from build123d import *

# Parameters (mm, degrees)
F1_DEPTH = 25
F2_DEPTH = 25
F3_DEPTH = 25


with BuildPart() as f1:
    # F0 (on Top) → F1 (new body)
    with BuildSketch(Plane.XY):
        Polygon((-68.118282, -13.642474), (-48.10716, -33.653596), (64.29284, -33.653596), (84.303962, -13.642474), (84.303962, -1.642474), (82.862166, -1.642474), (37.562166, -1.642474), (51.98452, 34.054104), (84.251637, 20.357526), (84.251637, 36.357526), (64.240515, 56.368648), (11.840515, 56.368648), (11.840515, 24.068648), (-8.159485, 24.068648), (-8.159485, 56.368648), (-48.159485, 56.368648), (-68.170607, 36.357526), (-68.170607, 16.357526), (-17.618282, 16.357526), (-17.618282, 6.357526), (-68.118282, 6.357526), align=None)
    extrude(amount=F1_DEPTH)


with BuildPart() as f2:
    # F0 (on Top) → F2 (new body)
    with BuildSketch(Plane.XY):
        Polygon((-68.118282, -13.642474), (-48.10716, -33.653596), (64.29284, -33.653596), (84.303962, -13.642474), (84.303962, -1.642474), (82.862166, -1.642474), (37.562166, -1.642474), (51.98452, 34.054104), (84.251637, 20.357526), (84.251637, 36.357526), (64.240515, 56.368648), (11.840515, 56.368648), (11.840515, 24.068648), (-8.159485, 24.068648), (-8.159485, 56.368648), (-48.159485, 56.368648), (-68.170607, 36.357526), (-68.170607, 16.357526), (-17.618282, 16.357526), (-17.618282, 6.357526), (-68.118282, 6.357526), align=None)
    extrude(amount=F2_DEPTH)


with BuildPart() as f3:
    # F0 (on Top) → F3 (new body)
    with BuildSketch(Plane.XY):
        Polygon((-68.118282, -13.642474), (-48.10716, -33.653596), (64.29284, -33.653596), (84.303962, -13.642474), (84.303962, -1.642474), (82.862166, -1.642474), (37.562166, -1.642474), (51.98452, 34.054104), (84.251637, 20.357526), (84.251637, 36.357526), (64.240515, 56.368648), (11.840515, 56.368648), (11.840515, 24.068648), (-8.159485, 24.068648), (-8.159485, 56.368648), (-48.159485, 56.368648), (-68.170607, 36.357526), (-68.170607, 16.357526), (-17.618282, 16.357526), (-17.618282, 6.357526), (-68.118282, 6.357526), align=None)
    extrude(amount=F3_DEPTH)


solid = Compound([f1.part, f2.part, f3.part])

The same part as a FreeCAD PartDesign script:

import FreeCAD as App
import Part
import Sketcher

V = App.Vector
Q = App.Units.Quantity

doc = App.newDocument("Part")
body = doc.addObject("PartDesign::Body", "Body")

# Sketch on XY plane
sketch1 = doc.addObject("Sketcher::SketchObject", "Sketch")
body.addObject(sketch1)
sketch1.AttachmentSupport = (doc.XY_Plane, [""])
sketch1.MapMode = "FlatFace"
sketch1.addGeometry(Part.LineSegment(V(-68, -14, 0), V(-48, -34, 0)), False)
sketch1.addGeometry(Part.LineSegment(V(-48, -34, 0), V(64, -34, 0)), False)
sketch1.addGeometry(Part.LineSegment(V(64, -34, 0), V(84, -14, 0)), False)
sketch1.addGeometry(Part.LineSegment(V(84, -14, 0), V(84, -2, 0)), False)
sketch1.addGeometry(Part.LineSegment(V(84, -2, 0), V(38, -2, 0)), False)
sketch1.addGeometry(Part.LineSegment(V(38, -2, 0), V(52, 34, 0)), False)
sketch1.addGeometry(Part.LineSegment(V(52, 34, 0), V(84, 20, 0)), False)
sketch1.addGeometry(Part.LineSegment(V(84, 20, 0), V(84, 36, 0)), False)
sketch1.addGeometry(Part.LineSegment(V(84, 36, 0), V(64, 56, 0)), False)
sketch1.addGeometry(Part.LineSegment(V(64, 56, 0), V(12, 56, 0)), False)
sketch1.addGeometry(Part.LineSegment(V(12, 56, 0), V(12, 24, 0)), False)
sketch1.addGeometry(Part.LineSegment(V(12, 24, 0), V(-8, 24, 0)), False)
sketch1.addGeometry(Part.LineSegment(V(-8, 24, 0), V(-8, 56, 0)), False)
sketch1.addGeometry(Part.LineSegment(V(-8, 56, 0), V(-48, 56, 0)), False)
sketch1.addGeometry(Part.LineSegment(V(-48, 56, 0), V(-68, 36, 0)), False)
sketch1.addGeometry(Part.LineSegment(V(-68, 36, 0), V(-68, 16, 0)), False)
sketch1.addGeometry(Part.LineSegment(V(-68, 16, 0), V(-18, 16, 0)), False)
sketch1.addGeometry(Part.LineSegment(V(-18, 16, 0), V(-18, 6, 0)), False)
sketch1.addGeometry(Part.LineSegment(V(-18, 6, 0), V(-68, 6, 0)), False)
sketch1.addGeometry(Part.LineSegment(V(-68, 6, 0), V(-68, -14, 0)), False)
sketch1.addConstraint(Sketcher.Constraint("Coincident", 0, 2, 1, 1))
sketch1.addConstraint(Sketcher.Constraint("Coincident", 1, 2, 2, 1))
sketch1.addConstraint(Sketcher.Constraint("Coincident", 2, 2, 3, 1))
sketch1.addConstraint(Sketcher.Constraint("Coincident", 3, 2, 4, 1))
sketch1.addConstraint(Sketcher.Constraint("Coincident", 4, 2, 5, 1))
sketch1.addConstraint(Sketcher.Constraint("Coincident", 5, 2, 6, 1))
sketch1.addConstraint(Sketcher.Constraint("Coincident", 6, 2, 7, 1))
sketch1.addConstraint(Sketcher.Constraint("Coincident", 7, 2, 8, 1))
sketch1.addConstraint(Sketcher.Constraint("Coincident", 8, 2, 9, 1))
sketch1.addConstraint(Sketcher.Constraint("Coincident", 9, 2, 10, 1))
sketch1.addConstraint(Sketcher.Constraint("Coincident", 10, 2, 11, 1))
sketch1.addConstraint(Sketcher.Constraint("Coincident", 11, 2, 12, 1))
sketch1.addConstraint(Sketcher.Constraint("Coincident", 12, 2, 13, 1))
sketch1.addConstraint(Sketcher.Constraint("Coincident", 13, 2, 14, 1))
sketch1.addConstraint(Sketcher.Constraint("Coincident", 14, 2, 15, 1))
sketch1.addConstraint(Sketcher.Constraint("Coincident", 15, 2, 16, 1))
sketch1.addConstraint(Sketcher.Constraint("Coincident", 16, 2, 17, 1))
sketch1.addConstraint(Sketcher.Constraint("Coincident", 17, 2, 18, 1))
sketch1.addConstraint(Sketcher.Constraint("Coincident", 18, 2, 19, 1))
sketch1.addConstraint(Sketcher.Constraint("Coincident", 19, 2, 0, 1))
sketch1.addConstraint(Sketcher.Constraint("Horizontal", 1))
sketch1.addConstraint(Sketcher.Constraint("Vertical", 3))
sketch1.addConstraint(Sketcher.Constraint("Horizontal", 4))
sketch1.addConstraint(Sketcher.Constraint("Vertical", 7))
sketch1.addConstraint(Sketcher.Constraint("Horizontal", 9))
sketch1.addConstraint(Sketcher.Constraint("Vertical", 10))
sketch1.addConstraint(Sketcher.Constraint("Horizontal", 11))
sketch1.addConstraint(Sketcher.Constraint("Vertical", 12))
sketch1.addConstraint(Sketcher.Constraint("Horizontal", 13))
sketch1.addConstraint(Sketcher.Constraint("Vertical", 15))
sketch1.addConstraint(Sketcher.Constraint("Horizontal", 16))
sketch1.addConstraint(Sketcher.Constraint("Vertical", 17))
sketch1.addConstraint(Sketcher.Constraint("Horizontal", 18))
sketch1.addConstraint(Sketcher.Constraint("Vertical", 19))
sketch1.addConstraint(Sketcher.Constraint("Perpendicular", 0, 2))
sketch1.addConstraint(Sketcher.Constraint("Perpendicular", 2, 8))
sketch1.addConstraint(Sketcher.Constraint("Perpendicular", 8, 14))
sketch1.addConstraint(Sketcher.Constraint("Horizontal", 9, 2, 12, 2))
sketch1.addConstraint(Sketcher.Constraint("Horizontal", 7, 2, 14, 2))
sketch1.addConstraint(Sketcher.Constraint("Horizontal", 2, 2, 19, 2))
sketch1.addConstraint(Sketcher.Constraint("Equal", 11, 15))
sketch1.addConstraint(Sketcher.Constraint("Equal", 15, 19))
sketch1.addConstraint(Sketcher.Constraint("Equal", 0, 2))
sketch1.addConstraint(Sketcher.Constraint("Equal", 2, 8))
sketch1.addConstraint(Sketcher.Constraint("DistanceX", 11, 2, 11, 1, Q("20 mm")))
sketch1.addConstraint(Sketcher.Constraint("DistanceX", 13, 2, 13, 1, Q("40 mm")))
sketch1.addConstraint(Sketcher.Constraint("DistanceY", 3, 1, 3, 2, Q("12 mm")))
sketch1.addConstraint(Sketcher.Constraint("DistanceY", 7, 1, 7, 2, Q("16 mm")))
sketch1.addConstraint(Sketcher.Constraint("DistanceY", 17, 2, 17, 1, Q("10 mm")))
sketch1.addConstraint(Sketcher.Constraint("Angle", 5, Q("68 deg")))
sketch1.addConstraint(Sketcher.Constraint("Angle", 6, Q("-22.999999 deg")))
sketch1.addConstraint(Sketcher.Constraint("DistanceX", 1, 1, 1, 2, Q("112.4 mm")))
sketch1.addConstraint(Sketcher.Constraint("DistanceX", 9, 2, 9, 1, Q("52.4 mm")))
sketch1.addConstraint(Sketcher.Constraint("DistanceX", 18, 2, 18, 1, Q("50.5 mm")))
sketch1.addConstraint(Sketcher.Constraint("DistanceY", 10, 2, 10, 1, Q("32.3 mm")))
sketch1.addConstraint(Sketcher.Constraint("Distance", 0, Q("28.3 mm")))
sketch1.addConstraint(Sketcher.Constraint("Distance", 5, Q("38.5 mm")))
sketch1.addConstraint(Sketcher.Constraint("DistanceX", 4, 2, 4, 1, Q("46.741796 mm")))
sketch1.addConstraint(Sketcher.Constraint("DistanceX", 0, 2, -1, 1, Q("48.10716 mm")))
sketch1.addConstraint(Sketcher.Constraint("DistanceY", 0, 2, -1, 1, Q("33.653596 mm")))
pad1 = doc.addObject("PartDesign::Pad", "Pad")
body.addObject(pad1)
pad1.Profile = sketch1
pad1.Length = 25
body2 = doc.addObject("PartDesign::Body", "Body001")

# Sketch on XY plane
sketch2 = doc.addObject("Sketcher::SketchObject", "Sketch001")
body2.addObject(sketch2)
sketch2.AttachmentSupport = (doc.getObject("XY_Plane001"), [""])
sketch2.MapMode = "FlatFace"
sketch2.addGeometry(Part.LineSegment(V(-68, -14, 0), V(-48, -34, 0)), False)
sketch2.addGeometry(Part.LineSegment(V(-48, -34, 0), V(64, -34, 0)), False)
sketch2.addGeometry(Part.LineSegment(V(64, -34, 0), V(84, -14, 0)), False)
sketch2.addGeometry(Part.LineSegment(V(84, -14, 0), V(84, -2, 0)), False)
sketch2.addGeometry(Part.LineSegment(V(84, -2, 0), V(38, -2, 0)), False)
sketch2.addGeometry(Part.LineSegment(V(38, -2, 0), V(52, 34, 0)), False)
sketch2.addGeometry(Part.LineSegment(V(52, 34, 0), V(84, 20, 0)), False)
sketch2.addGeometry(Part.LineSegment(V(84, 20, 0), V(84, 36, 0)), False)
sketch2.addGeometry(Part.LineSegment(V(84, 36, 0), V(64, 56, 0)), False)
sketch2.addGeometry(Part.LineSegment(V(64, 56, 0), V(12, 56, 0)), False)
sketch2.addGeometry(Part.LineSegment(V(12, 56, 0), V(12, 24, 0)), False)
sketch2.addGeometry(Part.LineSegment(V(12, 24, 0), V(-8, 24, 0)), False)
sketch2.addGeometry(Part.LineSegment(V(-8, 24, 0), V(-8, 56, 0)), False)
sketch2.addGeometry(Part.LineSegment(V(-8, 56, 0), V(-48, 56, 0)), False)
sketch2.addGeometry(Part.LineSegment(V(-48, 56, 0), V(-68, 36, 0)), False)
sketch2.addGeometry(Part.LineSegment(V(-68, 36, 0), V(-68, 16, 0)), False)
sketch2.addGeometry(Part.LineSegment(V(-68, 16, 0), V(-18, 16, 0)), False)
sketch2.addGeometry(Part.LineSegment(V(-18, 16, 0), V(-18, 6, 0)), False)
sketch2.addGeometry(Part.LineSegment(V(-18, 6, 0), V(-68, 6, 0)), False)
sketch2.addGeometry(Part.LineSegment(V(-68, 6, 0), V(-68, -14, 0)), False)
sketch2.addConstraint(Sketcher.Constraint("Coincident", 0, 2, 1, 1))
sketch2.addConstraint(Sketcher.Constraint("Coincident", 1, 2, 2, 1))
sketch2.addConstraint(Sketcher.Constraint("Coincident", 2, 2, 3, 1))
sketch2.addConstraint(Sketcher.Constraint("Coincident", 3, 2, 4, 1))
sketch2.addConstraint(Sketcher.Constraint("Coincident", 4, 2, 5, 1))
sketch2.addConstraint(Sketcher.Constraint("Coincident", 5, 2, 6, 1))
sketch2.addConstraint(Sketcher.Constraint("Coincident", 6, 2, 7, 1))
sketch2.addConstraint(Sketcher.Constraint("Coincident", 7, 2, 8, 1))
sketch2.addConstraint(Sketcher.Constraint("Coincident", 8, 2, 9, 1))
sketch2.addConstraint(Sketcher.Constraint("Coincident", 9, 2, 10, 1))
sketch2.addConstraint(Sketcher.Constraint("Coincident", 10, 2, 11, 1))
sketch2.addConstraint(Sketcher.Constraint("Coincident", 11, 2, 12, 1))
sketch2.addConstraint(Sketcher.Constraint("Coincident", 12, 2, 13, 1))
sketch2.addConstraint(Sketcher.Constraint("Coincident", 13, 2, 14, 1))
sketch2.addConstraint(Sketcher.Constraint("Coincident", 14, 2, 15, 1))
sketch2.addConstraint(Sketcher.Constraint("Coincident", 15, 2, 16, 1))
sketch2.addConstraint(Sketcher.Constraint("Coincident", 16, 2, 17, 1))
sketch2.addConstraint(Sketcher.Constraint("Coincident", 17, 2, 18, 1))
sketch2.addConstraint(Sketcher.Constraint("Coincident", 18, 2, 19, 1))
sketch2.addConstraint(Sketcher.Constraint("Coincident", 19, 2, 0, 1))
sketch2.addConstraint(Sketcher.Constraint("Horizontal", 1))
sketch2.addConstraint(Sketcher.Constraint("Vertical", 3))
sketch2.addConstraint(Sketcher.Constraint("Horizontal", 4))
sketch2.addConstraint(Sketcher.Constraint("Vertical", 7))
sketch2.addConstraint(Sketcher.Constraint("Horizontal", 9))
sketch2.addConstraint(Sketcher.Constraint("Vertical", 10))
sketch2.addConstraint(Sketcher.Constraint("Horizontal", 11))
sketch2.addConstraint(Sketcher.Constraint("Vertical", 12))
sketch2.addConstraint(Sketcher.Constraint("Horizontal", 13))
sketch2.addConstraint(Sketcher.Constraint("Vertical", 15))
sketch2.addConstraint(Sketcher.Constraint("Horizontal", 16))
sketch2.addConstraint(Sketcher.Constraint("Vertical", 17))
sketch2.addConstraint(Sketcher.Constraint("Horizontal", 18))
sketch2.addConstraint(Sketcher.Constraint("Vertical", 19))
sketch2.addConstraint(Sketcher.Constraint("Perpendicular", 0, 2))
sketch2.addConstraint(Sketcher.Constraint("Perpendicular", 2, 8))
sketch2.addConstraint(Sketcher.Constraint("Perpendicular", 8, 14))
sketch2.addConstraint(Sketcher.Constraint("Horizontal", 9, 2, 12, 2))
sketch2.addConstraint(Sketcher.Constraint("Horizontal", 7, 2, 14, 2))
sketch2.addConstraint(Sketcher.Constraint("Horizontal", 2, 2, 19, 2))
sketch2.addConstraint(Sketcher.Constraint("Equal", 11, 15))
sketch2.addConstraint(Sketcher.Constraint("Equal", 15, 19))
sketch2.addConstraint(Sketcher.Constraint("Equal", 0, 2))
sketch2.addConstraint(Sketcher.Constraint("Equal", 2, 8))
sketch2.addConstraint(Sketcher.Constraint("DistanceX", 11, 2, 11, 1, Q("20 mm")))
sketch2.addConstraint(Sketcher.Constraint("DistanceX", 13, 2, 13, 1, Q("40 mm")))
sketch2.addConstraint(Sketcher.Constraint("DistanceY", 3, 1, 3, 2, Q("12 mm")))
sketch2.addConstraint(Sketcher.Constraint("DistanceY", 7, 1, 7, 2, Q("16 mm")))
sketch2.addConstraint(Sketcher.Constraint("DistanceY", 17, 2, 17, 1, Q("10 mm")))
sketch2.addConstraint(Sketcher.Constraint("Angle", 5, Q("68 deg")))
sketch2.addConstraint(Sketcher.Constraint("Angle", 6, Q("-22.999999 deg")))
sketch2.addConstraint(Sketcher.Constraint("DistanceX", 1, 1, 1, 2, Q("112.4 mm")))
sketch2.addConstraint(Sketcher.Constraint("DistanceX", 9, 2, 9, 1, Q("52.4 mm")))
sketch2.addConstraint(Sketcher.Constraint("DistanceX", 18, 2, 18, 1, Q("50.5 mm")))
sketch2.addConstraint(Sketcher.Constraint("DistanceY", 10, 2, 10, 1, Q("32.3 mm")))
sketch2.addConstraint(Sketcher.Constraint("Distance", 0, Q("28.3 mm")))
sketch2.addConstraint(Sketcher.Constraint("Distance", 5, Q("38.5 mm")))
sketch2.addConstraint(Sketcher.Constraint("DistanceX", 4, 2, 4, 1, Q("46.741796 mm")))
sketch2.addConstraint(Sketcher.Constraint("DistanceX", 0, 2, -1, 1, Q("48.10716 mm")))
sketch2.addConstraint(Sketcher.Constraint("DistanceY", 0, 2, -1, 1, Q("33.653596 mm")))
pad2 = doc.addObject("PartDesign::Pad", "Pad001")
body2.addObject(pad2)
pad2.Profile = sketch2
pad2.Length = 25
body3 = doc.addObject("PartDesign::Body", "Body002")

# Sketch on XY plane
sketch3 = doc.addObject("Sketcher::SketchObject", "Sketch002")
body3.addObject(sketch3)
sketch3.AttachmentSupport = (doc.getObject("XY_Plane002"), [""])
sketch3.MapMode = "FlatFace"
sketch3.addGeometry(Part.LineSegment(V(-68, -14, 0), V(-48, -34, 0)), False)
sketch3.addGeometry(Part.LineSegment(V(-48, -34, 0), V(64, -34, 0)), False)
sketch3.addGeometry(Part.LineSegment(V(64, -34, 0), V(84, -14, 0)), False)
sketch3.addGeometry(Part.LineSegment(V(84, -14, 0), V(84, -2, 0)), False)
sketch3.addGeometry(Part.LineSegment(V(84, -2, 0), V(38, -2, 0)), False)
sketch3.addGeometry(Part.LineSegment(V(38, -2, 0), V(52, 34, 0)), False)
sketch3.addGeometry(Part.LineSegment(V(52, 34, 0), V(84, 20, 0)), False)
sketch3.addGeometry(Part.LineSegment(V(84, 20, 0), V(84, 36, 0)), False)
sketch3.addGeometry(Part.LineSegment(V(84, 36, 0), V(64, 56, 0)), False)
sketch3.addGeometry(Part.LineSegment(V(64, 56, 0), V(12, 56, 0)), False)
sketch3.addGeometry(Part.LineSegment(V(12, 56, 0), V(12, 24, 0)), False)
sketch3.addGeometry(Part.LineSegment(V(12, 24, 0), V(-8, 24, 0)), False)
sketch3.addGeometry(Part.LineSegment(V(-8, 24, 0), V(-8, 56, 0)), False)
sketch3.addGeometry(Part.LineSegment(V(-8, 56, 0), V(-48, 56, 0)), False)
sketch3.addGeometry(Part.LineSegment(V(-48, 56, 0), V(-68, 36, 0)), False)
sketch3.addGeometry(Part.LineSegment(V(-68, 36, 0), V(-68, 16, 0)), False)
sketch3.addGeometry(Part.LineSegment(V(-68, 16, 0), V(-18, 16, 0)), False)
sketch3.addGeometry(Part.LineSegment(V(-18, 16, 0), V(-18, 6, 0)), False)
sketch3.addGeometry(Part.LineSegment(V(-18, 6, 0), V(-68, 6, 0)), False)
sketch3.addGeometry(Part.LineSegment(V(-68, 6, 0), V(-68, -14, 0)), False)
sketch3.addConstraint(Sketcher.Constraint("Coincident", 0, 2, 1, 1))
sketch3.addConstraint(Sketcher.Constraint("Coincident", 1, 2, 2, 1))
sketch3.addConstraint(Sketcher.Constraint("Coincident", 2, 2, 3, 1))
sketch3.addConstraint(Sketcher.Constraint("Coincident", 3, 2, 4, 1))
sketch3.addConstraint(Sketcher.Constraint("Coincident", 4, 2, 5, 1))
sketch3.addConstraint(Sketcher.Constraint("Coincident", 5, 2, 6, 1))
sketch3.addConstraint(Sketcher.Constraint("Coincident", 6, 2, 7, 1))
sketch3.addConstraint(Sketcher.Constraint("Coincident", 7, 2, 8, 1))
sketch3.addConstraint(Sketcher.Constraint("Coincident", 8, 2, 9, 1))
sketch3.addConstraint(Sketcher.Constraint("Coincident", 9, 2, 10, 1))
sketch3.addConstraint(Sketcher.Constraint("Coincident", 10, 2, 11, 1))
sketch3.addConstraint(Sketcher.Constraint("Coincident", 11, 2, 12, 1))
sketch3.addConstraint(Sketcher.Constraint("Coincident", 12, 2, 13, 1))
sketch3.addConstraint(Sketcher.Constraint("Coincident", 13, 2, 14, 1))
sketch3.addConstraint(Sketcher.Constraint("Coincident", 14, 2, 15, 1))
sketch3.addConstraint(Sketcher.Constraint("Coincident", 15, 2, 16, 1))
sketch3.addConstraint(Sketcher.Constraint("Coincident", 16, 2, 17, 1))
sketch3.addConstraint(Sketcher.Constraint("Coincident", 17, 2, 18, 1))
sketch3.addConstraint(Sketcher.Constraint("Coincident", 18, 2, 19, 1))
sketch3.addConstraint(Sketcher.Constraint("Coincident", 19, 2, 0, 1))
sketch3.addConstraint(Sketcher.Constraint("Horizontal", 1))
sketch3.addConstraint(Sketcher.Constraint("Vertical", 3))
sketch3.addConstraint(Sketcher.Constraint("Horizontal", 4))
sketch3.addConstraint(Sketcher.Constraint("Vertical", 7))
sketch3.addConstraint(Sketcher.Constraint("Horizontal", 9))
sketch3.addConstraint(Sketcher.Constraint("Vertical", 10))
sketch3.addConstraint(Sketcher.Constraint("Horizontal", 11))
sketch3.addConstraint(Sketcher.Constraint("Vertical", 12))
sketch3.addConstraint(Sketcher.Constraint("Horizontal", 13))
sketch3.addConstraint(Sketcher.Constraint("Vertical", 15))
sketch3.addConstraint(Sketcher.Constraint("Horizontal", 16))
sketch3.addConstraint(Sketcher.Constraint("Vertical", 17))
sketch3.addConstraint(Sketcher.Constraint("Horizontal", 18))
sketch3.addConstraint(Sketcher.Constraint("Vertical", 19))
sketch3.addConstraint(Sketcher.Constraint("Perpendicular", 0, 2))
sketch3.addConstraint(Sketcher.Constraint("Perpendicular", 2, 8))
sketch3.addConstraint(Sketcher.Constraint("Perpendicular", 8, 14))
sketch3.addConstraint(Sketcher.Constraint("Horizontal", 9, 2, 12, 2))
sketch3.addConstraint(Sketcher.Constraint("Horizontal", 7, 2, 14, 2))
sketch3.addConstraint(Sketcher.Constraint("Horizontal", 2, 2, 19, 2))
sketch3.addConstraint(Sketcher.Constraint("Equal", 11, 15))
sketch3.addConstraint(Sketcher.Constraint("Equal", 15, 19))
sketch3.addConstraint(Sketcher.Constraint("Equal", 0, 2))
sketch3.addConstraint(Sketcher.Constraint("Equal", 2, 8))
sketch3.addConstraint(Sketcher.Constraint("DistanceX", 11, 2, 11, 1, Q("20 mm")))
sketch3.addConstraint(Sketcher.Constraint("DistanceX", 13, 2, 13, 1, Q("40 mm")))
sketch3.addConstraint(Sketcher.Constraint("DistanceY", 3, 1, 3, 2, Q("12 mm")))
sketch3.addConstraint(Sketcher.Constraint("DistanceY", 7, 1, 7, 2, Q("16 mm")))
sketch3.addConstraint(Sketcher.Constraint("DistanceY", 17, 2, 17, 1, Q("10 mm")))
sketch3.addConstraint(Sketcher.Constraint("Angle", 5, Q("68 deg")))
sketch3.addConstraint(Sketcher.Constraint("Angle", 6, Q("-22.999999 deg")))
sketch3.addConstraint(Sketcher.Constraint("DistanceX", 1, 1, 1, 2, Q("112.4 mm")))
sketch3.addConstraint(Sketcher.Constraint("DistanceX", 9, 2, 9, 1, Q("52.4 mm")))
sketch3.addConstraint(Sketcher.Constraint("DistanceX", 18, 2, 18, 1, Q("50.5 mm")))
sketch3.addConstraint(Sketcher.Constraint("DistanceY", 10, 2, 10, 1, Q("32.3 mm")))
sketch3.addConstraint(Sketcher.Constraint("Distance", 0, Q("28.3 mm")))
sketch3.addConstraint(Sketcher.Constraint("Distance", 5, Q("38.5 mm")))
sketch3.addConstraint(Sketcher.Constraint("DistanceX", 4, 2, 4, 1, Q("46.741796 mm")))
sketch3.addConstraint(Sketcher.Constraint("DistanceX", 0, 2, -1, 1, Q("48.10716 mm")))
sketch3.addConstraint(Sketcher.Constraint("DistanceY", 0, 2, -1, 1, Q("33.653596 mm")))
pad3 = doc.addObject("PartDesign::Pad", "Pad002")
body3.addObject(pad3)
pad3.Profile = sketch3
pad3.Length = 25

doc.recompute()
